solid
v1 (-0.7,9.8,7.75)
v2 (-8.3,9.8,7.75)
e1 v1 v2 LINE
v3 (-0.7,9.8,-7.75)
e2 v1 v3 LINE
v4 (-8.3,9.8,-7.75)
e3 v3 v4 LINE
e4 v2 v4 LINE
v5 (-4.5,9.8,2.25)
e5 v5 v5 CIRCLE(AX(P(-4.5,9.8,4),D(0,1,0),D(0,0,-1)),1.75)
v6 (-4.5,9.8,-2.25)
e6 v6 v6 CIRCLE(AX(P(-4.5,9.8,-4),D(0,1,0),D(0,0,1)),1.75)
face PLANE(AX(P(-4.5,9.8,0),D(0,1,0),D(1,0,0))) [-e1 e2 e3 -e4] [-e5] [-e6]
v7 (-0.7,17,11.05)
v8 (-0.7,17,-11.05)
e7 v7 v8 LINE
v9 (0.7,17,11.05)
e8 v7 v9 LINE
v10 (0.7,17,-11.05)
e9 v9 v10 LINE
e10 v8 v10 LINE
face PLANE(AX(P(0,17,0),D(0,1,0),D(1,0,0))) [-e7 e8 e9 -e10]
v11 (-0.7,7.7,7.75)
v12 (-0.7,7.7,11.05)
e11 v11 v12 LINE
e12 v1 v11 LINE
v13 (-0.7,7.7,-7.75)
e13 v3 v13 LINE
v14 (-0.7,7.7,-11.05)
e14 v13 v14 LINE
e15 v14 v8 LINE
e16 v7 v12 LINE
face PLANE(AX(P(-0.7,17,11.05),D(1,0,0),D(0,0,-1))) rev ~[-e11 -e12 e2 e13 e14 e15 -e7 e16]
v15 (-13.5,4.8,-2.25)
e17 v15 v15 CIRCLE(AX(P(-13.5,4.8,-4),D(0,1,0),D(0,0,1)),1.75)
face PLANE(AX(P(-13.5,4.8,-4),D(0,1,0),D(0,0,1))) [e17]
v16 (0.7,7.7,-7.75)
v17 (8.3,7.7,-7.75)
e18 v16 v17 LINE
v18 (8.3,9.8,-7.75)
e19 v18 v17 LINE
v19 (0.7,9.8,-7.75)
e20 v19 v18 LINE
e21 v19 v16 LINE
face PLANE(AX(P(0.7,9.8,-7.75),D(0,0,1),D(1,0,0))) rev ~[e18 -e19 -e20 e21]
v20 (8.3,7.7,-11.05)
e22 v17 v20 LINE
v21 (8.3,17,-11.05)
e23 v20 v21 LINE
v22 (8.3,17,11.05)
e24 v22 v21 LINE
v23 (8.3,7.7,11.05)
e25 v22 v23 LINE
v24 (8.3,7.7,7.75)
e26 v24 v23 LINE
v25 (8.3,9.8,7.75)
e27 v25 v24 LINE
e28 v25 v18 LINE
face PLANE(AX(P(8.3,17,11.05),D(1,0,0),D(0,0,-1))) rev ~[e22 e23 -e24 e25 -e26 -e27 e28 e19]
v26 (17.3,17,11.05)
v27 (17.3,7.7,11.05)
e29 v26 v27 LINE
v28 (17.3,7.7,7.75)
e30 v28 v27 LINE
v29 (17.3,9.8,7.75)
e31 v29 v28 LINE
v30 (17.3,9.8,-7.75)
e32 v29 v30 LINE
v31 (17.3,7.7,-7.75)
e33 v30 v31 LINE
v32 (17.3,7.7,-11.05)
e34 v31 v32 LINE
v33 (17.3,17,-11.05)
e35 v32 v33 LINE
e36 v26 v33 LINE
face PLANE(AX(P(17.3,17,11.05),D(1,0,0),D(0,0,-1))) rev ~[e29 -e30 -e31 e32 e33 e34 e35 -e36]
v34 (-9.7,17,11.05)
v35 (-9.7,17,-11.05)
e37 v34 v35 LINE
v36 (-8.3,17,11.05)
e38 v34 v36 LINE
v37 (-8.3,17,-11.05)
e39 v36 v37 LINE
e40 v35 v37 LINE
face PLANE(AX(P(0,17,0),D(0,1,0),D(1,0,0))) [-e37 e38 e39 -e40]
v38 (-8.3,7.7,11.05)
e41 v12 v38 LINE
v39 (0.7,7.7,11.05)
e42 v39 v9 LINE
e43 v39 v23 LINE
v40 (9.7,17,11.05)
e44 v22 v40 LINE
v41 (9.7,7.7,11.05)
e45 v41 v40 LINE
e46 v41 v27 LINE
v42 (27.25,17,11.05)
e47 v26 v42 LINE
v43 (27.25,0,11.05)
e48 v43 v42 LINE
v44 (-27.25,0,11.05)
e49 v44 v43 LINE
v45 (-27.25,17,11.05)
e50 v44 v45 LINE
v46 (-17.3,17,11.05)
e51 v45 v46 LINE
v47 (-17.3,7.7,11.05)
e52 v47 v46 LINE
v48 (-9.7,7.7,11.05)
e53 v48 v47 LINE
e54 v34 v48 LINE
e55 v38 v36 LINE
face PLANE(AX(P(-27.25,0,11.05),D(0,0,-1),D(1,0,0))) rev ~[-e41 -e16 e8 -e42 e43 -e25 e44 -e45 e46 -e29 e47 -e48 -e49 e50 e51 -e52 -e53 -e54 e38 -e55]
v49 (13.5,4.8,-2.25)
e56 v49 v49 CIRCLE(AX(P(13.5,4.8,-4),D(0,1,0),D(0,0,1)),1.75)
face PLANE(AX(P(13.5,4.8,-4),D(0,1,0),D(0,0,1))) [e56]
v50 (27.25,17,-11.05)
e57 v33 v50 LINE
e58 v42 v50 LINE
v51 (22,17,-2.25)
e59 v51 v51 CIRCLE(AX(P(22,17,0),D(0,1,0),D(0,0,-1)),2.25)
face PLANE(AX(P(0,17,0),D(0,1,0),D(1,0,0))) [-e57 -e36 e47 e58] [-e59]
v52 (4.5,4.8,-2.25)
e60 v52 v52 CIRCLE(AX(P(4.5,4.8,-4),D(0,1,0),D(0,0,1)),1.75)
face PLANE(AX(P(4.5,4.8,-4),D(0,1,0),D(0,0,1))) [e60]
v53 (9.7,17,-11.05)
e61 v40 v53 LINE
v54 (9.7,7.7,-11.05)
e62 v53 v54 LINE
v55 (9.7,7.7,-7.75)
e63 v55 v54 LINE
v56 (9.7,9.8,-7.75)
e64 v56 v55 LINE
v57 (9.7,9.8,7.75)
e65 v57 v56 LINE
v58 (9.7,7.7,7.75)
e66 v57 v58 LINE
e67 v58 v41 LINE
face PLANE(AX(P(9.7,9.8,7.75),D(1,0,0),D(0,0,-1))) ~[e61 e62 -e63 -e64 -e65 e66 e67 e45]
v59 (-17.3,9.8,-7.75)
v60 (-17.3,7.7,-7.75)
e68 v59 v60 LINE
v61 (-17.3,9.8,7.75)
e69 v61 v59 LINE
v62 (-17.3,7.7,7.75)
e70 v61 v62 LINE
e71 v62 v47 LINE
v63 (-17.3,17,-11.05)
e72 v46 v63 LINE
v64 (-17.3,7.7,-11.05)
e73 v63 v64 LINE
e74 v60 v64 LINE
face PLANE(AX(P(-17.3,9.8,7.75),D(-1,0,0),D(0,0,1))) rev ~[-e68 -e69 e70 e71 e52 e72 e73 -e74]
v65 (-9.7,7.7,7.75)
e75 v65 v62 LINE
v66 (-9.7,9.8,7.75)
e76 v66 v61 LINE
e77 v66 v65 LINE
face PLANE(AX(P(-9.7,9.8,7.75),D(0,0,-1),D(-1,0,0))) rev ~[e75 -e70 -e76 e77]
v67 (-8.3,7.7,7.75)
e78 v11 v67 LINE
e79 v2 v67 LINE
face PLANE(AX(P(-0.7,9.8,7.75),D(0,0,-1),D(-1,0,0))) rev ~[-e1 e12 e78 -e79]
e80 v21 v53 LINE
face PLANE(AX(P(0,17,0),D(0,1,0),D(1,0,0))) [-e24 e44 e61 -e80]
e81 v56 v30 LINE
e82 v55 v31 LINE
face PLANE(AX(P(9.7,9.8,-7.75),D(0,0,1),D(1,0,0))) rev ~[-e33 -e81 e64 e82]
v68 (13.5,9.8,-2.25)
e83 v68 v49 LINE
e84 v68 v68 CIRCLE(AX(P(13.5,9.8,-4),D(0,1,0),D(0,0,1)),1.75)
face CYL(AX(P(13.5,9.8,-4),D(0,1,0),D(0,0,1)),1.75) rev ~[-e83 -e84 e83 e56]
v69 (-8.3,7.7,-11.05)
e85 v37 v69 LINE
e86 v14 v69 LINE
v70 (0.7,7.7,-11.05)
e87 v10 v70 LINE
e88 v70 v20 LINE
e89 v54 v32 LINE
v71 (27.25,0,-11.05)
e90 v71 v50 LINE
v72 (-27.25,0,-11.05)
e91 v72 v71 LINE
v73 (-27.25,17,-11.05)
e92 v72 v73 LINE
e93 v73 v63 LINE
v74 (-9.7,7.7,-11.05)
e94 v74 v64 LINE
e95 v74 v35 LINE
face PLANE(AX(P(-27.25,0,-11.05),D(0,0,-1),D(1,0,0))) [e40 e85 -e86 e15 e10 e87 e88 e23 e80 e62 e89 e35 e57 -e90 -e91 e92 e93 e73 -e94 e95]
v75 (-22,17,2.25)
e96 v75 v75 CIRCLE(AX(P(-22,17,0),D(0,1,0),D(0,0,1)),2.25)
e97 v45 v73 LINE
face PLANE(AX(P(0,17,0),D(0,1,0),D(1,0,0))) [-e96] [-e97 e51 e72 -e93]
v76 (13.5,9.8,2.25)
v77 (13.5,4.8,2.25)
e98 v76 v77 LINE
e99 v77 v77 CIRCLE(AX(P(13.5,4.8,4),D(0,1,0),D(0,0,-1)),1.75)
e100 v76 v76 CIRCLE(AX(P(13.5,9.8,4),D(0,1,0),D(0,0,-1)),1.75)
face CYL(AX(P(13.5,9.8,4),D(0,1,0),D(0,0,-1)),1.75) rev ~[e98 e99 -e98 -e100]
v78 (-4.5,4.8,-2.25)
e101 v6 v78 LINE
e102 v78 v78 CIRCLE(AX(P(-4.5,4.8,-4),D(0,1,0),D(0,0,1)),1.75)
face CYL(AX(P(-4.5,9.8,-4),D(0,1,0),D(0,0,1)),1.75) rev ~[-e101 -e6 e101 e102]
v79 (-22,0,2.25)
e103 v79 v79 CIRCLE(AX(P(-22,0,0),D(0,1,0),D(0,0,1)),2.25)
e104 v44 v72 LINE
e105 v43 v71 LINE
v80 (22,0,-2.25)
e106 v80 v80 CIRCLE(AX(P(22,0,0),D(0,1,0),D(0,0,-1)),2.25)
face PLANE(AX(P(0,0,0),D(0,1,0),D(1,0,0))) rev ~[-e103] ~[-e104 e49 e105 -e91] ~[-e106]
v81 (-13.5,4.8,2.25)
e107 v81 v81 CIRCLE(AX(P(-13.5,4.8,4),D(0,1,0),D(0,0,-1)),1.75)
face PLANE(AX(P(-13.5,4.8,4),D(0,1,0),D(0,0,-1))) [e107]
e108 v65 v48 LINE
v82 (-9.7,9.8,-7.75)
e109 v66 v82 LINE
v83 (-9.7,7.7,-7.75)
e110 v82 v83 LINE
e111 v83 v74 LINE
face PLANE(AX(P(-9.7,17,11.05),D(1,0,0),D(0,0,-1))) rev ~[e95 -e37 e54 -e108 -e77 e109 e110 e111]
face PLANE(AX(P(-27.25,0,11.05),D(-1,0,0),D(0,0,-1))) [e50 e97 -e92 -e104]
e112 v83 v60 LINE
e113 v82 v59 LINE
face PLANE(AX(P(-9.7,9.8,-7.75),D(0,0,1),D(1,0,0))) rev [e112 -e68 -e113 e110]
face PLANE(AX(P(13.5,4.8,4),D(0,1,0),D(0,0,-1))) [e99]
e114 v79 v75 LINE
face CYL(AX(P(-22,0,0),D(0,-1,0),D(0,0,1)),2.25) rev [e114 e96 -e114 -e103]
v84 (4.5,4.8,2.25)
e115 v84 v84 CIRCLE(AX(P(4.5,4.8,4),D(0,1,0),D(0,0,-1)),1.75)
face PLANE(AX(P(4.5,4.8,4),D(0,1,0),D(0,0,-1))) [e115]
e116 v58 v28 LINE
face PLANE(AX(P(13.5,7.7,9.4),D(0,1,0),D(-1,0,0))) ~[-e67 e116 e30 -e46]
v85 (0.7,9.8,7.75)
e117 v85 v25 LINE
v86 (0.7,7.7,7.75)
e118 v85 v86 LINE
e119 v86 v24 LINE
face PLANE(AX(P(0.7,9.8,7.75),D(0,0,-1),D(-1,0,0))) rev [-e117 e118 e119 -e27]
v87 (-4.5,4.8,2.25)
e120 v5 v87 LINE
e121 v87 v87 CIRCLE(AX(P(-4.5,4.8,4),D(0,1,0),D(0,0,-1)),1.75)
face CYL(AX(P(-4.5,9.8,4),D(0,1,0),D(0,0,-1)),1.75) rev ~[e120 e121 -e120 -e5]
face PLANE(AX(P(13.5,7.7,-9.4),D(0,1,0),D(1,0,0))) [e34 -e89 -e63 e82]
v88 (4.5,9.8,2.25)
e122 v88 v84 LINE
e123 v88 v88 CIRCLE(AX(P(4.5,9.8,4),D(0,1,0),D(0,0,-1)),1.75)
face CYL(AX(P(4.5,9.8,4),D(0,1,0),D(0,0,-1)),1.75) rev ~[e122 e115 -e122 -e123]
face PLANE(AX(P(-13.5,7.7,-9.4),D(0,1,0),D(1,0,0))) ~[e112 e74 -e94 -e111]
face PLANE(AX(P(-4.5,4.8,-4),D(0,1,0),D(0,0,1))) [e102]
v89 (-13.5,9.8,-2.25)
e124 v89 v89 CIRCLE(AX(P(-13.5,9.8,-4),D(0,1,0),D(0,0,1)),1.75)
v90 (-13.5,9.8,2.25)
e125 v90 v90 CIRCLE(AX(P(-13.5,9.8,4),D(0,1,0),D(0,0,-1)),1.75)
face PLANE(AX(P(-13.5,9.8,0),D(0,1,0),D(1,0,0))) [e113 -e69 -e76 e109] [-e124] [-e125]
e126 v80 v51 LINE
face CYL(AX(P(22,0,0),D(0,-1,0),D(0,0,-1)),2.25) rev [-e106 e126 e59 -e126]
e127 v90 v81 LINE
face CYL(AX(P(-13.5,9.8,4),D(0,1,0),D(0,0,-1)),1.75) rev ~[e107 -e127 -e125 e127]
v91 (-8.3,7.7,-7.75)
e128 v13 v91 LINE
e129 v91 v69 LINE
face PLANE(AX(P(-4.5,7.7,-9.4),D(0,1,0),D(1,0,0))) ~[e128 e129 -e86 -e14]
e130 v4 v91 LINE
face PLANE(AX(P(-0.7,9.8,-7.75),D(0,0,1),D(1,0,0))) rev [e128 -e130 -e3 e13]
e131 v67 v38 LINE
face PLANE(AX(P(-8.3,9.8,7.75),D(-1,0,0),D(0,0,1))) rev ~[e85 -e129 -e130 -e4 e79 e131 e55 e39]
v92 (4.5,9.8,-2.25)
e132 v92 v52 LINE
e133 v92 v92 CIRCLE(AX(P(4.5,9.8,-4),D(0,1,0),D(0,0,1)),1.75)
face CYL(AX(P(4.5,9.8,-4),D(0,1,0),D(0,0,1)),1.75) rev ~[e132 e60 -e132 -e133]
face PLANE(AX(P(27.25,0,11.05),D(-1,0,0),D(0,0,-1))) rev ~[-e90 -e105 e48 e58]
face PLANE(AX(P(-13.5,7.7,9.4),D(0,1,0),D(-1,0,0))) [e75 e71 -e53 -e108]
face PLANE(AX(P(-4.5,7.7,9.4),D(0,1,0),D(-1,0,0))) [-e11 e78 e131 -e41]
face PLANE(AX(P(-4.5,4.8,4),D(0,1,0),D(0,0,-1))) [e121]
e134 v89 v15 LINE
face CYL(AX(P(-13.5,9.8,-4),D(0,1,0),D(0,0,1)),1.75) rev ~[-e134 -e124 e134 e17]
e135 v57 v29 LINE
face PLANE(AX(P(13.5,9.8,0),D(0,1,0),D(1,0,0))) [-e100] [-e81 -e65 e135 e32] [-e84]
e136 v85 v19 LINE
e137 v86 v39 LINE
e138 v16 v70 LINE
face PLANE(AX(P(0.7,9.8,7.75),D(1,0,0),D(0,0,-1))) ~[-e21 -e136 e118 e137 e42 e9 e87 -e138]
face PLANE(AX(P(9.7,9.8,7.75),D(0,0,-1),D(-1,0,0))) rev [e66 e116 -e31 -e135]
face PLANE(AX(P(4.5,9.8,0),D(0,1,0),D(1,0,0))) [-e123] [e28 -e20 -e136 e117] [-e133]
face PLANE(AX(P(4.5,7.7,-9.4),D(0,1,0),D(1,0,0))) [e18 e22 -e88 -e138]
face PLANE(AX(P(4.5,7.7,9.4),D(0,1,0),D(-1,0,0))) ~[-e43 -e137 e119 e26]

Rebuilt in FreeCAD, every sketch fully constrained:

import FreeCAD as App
import Part
import Sketcher
from FreeCAD import Vector


def add_polygon(sketch, points):
    """Adds a closed chain of lines whose ends are joined by coincident constraints."""
    first, n = sketch.GeometryCount, len(points)
    for a, b in zip(points, points[1:] + points[:1]):
        sketch.addGeometry(Part.LineSegment(App.Vector(*a, 0), App.Vector(*b, 0)), False)
    for i in range(n):
        sketch.addConstraint(Sketcher.Constraint("Coincident", first + i, 2, first + (i + 1) % n, 1))

doc = App.newDocument("Part")
body = doc.addObject("PartDesign::Body", "Body")

sketch1 = body.newObject("Sketcher::SketchObject", "Sketch")
sketch1.AttachmentSupport = (doc.getObject("XZ_Plane"), [""])
sketch1.MapMode = "FlatFace"
add_polygon(sketch1, [(-27.25, -11.05), (-27.25, 11.05), (27.25, 11.05), (27.25, -11.05)])
sketch1.addGeometry(Part.Circle(Vector(-22, 0, 0), Vector(0, 0, 1), 2.25), False)
sketch1.addGeometry(Part.Circle(Vector(22, 0, 0), Vector(0, 0, 1), 2.25), False)
sketch1.addConstraint([
    Sketcher.Constraint("Vertical", 0),
    Sketcher.Constraint("Horizontal", 1),
    Sketcher.Constraint("Vertical", 2),
    Sketcher.Constraint("Horizontal", 3),
    Sketcher.Constraint("Equal", 4, 5),
    Sketcher.Constraint("Symmetric", 4, 3, 5, 3, -1, 1),
    Sketcher.Constraint("Symmetric", 0, 2, 2, 2, -1, 1),
    Sketcher.Constraint("PointOnObject", 4, 3, -1),
    Sketcher.Constraint("Diameter", 4, 4.5),
    Sketcher.Constraint("DistanceX", 1, 1, 1, 2, 54.5),
    Sketcher.Constraint("DistanceY", 0, 1, 0, 2, 22.1),
    Sketcher.Constraint("DistanceX", 4, 3, -1, 1, 22.0),
])
pad1 = body.newObject("PartDesign::Pad", "Pad")
pad1.Profile = sketch1
pad1.Length = 17
pad1.Reversed = True

sketch2 = body.newObject("Sketcher::SketchObject", "Sketch001")
sketch2.AttachmentSupport = (doc.getObject("XZ_Plane"), [""])
sketch2.MapMode = "FlatFace"
sketch2.AttachmentOffset = App.Placement(Vector(0, 0, -17), App.Rotation())
add_polygon(sketch2, [(9.7, -11.05), (9.7, 11.05), (17.3, 11.05), (17.3, -11.05)])
add_polygon(sketch2, [(-17.3, -11.05), (-17.3, 11.05), (-9.7, 11.05), (-9.7, -11.05)])
add_polygon(sketch2, [(-8.3, -11.05), (-8.3, 11.05), (-0.7, 11.05), (-0.7, -11.05)])
add_polygon(sketch2, [(0.7, -11.05), (0.7, 11.05), (8.3, 11.05), (8.3, -11.05)])
sketch2.addConstraint([
    Sketcher.Constraint("Vertical", 0),
    Sketcher.Constraint("Horizontal", 1),
    Sketcher.Constraint("Vertical", 2),
    Sketcher.Constraint("Horizontal", 3),
    Sketcher.Constraint("Vertical", 4),
    Sketcher.Constraint("Horizontal", 5),
    Sketcher.Constraint("Vertical", 6),
    Sketcher.Constraint("Horizontal", 7),
    Sketcher.Constraint("Vertical", 8),
    Sketcher.Constraint("Horizontal", 9),
    Sketcher.Constraint("Vertical", 10),
    Sketcher.Constraint("Horizontal", 11),
    Sketcher.Constraint("Vertical", 12),
    Sketcher.Constraint("Horizontal", 13),
    Sketcher.Constraint("Vertical", 14),
    Sketcher.Constraint("Horizontal", 15),
    Sketcher.Constraint("Symmetric", 2, 2, 4, 2, -1, 1),
    Sketcher.Constraint("Symmetric", 0, 2, 6, 2, -1, 1),
    Sketcher.Constraint("Symmetric", 10, 2, 12, 2, -1, 1),
    Sketcher.Constraint("Symmetric", 8, 2, 14, 2, -1, 1),
    Sketcher.Constraint("Horizontal", 1, 2, 4, 2),
    Sketcher.Constraint("Horizontal", 5, 2, 8, 2),
    Sketcher.Constraint("Horizontal", 7, 2, 10, 2),
    Sketcher.Constraint("Equal", 7, 9),
    Sketcher.Constraint("DistanceX", 1, 1, 1, 2, 7.6),
    Sketcher.Constraint("DistanceY", 0, 1, 0, 2, 22.1),
    Sketcher.Constraint("DistanceX", 4, 2, 0, 2, 27.0),
    Sketcher.Constraint("DistanceX", 4, 2, 8, 2, 9.0),
])
pocket1 = body.newObject("PartDesign::Pocket", "Pocket")
pocket1.Profile = sketch2
pocket1.Length = 7.2
pocket1.Reversed = True

sketch3 = body.newObject("Sketcher::SketchObject", "Sketch002")
sketch3.AttachmentSupport = (doc.getObject("XZ_Plane"), [""])
sketch3.MapMode = "FlatFace"
sketch3.AttachmentOffset = App.Placement(Vector(0, 0, -9.8), App.Rotation())
add_polygon(sketch3, [(0.7, -11.05), (0.7, -7.75), (8.3, -7.75), (8.3, -11.05)])
add_polygon(sketch3, [(9.7, -11.05), (9.7, -7.75), (17.3, -7.75), (17.3, -11.05)])
sketch3.addConstraint([
    Sketcher.Constraint("Vertical", 0),
    Sketcher.Constraint("Horizontal", 1),
    Sketcher.Constraint("Vertical", 2),
    Sketcher.Constraint("Horizontal", 3),
    Sketcher.Constraint("Vertical", 4),
    Sketcher.Constraint("Horizontal", 5),
    Sketcher.Constraint("Vertical", 6),
    Sketcher.Constraint("Horizontal", 7),
    Sketcher.Constraint("Horizontal", 1, 2, 4, 2),
    Sketcher.Constraint("Horizontal", 3, 2, 6, 2),
    Sketcher.Constraint("Equal", 3, 5),
    Sketcher.Constraint("DistanceX", 1, 1, 1, 2, 7.6),
    Sketcher.Constraint("DistanceY", 0, 1, 0, 2, 3.3),
    Sketcher.Constraint("DistanceX", 0, 2, 4, 2, 9.0),
    Sketcher.Constraint("DistanceX", -1, 1, 0, 2, 0.7),
    Sketcher.Constraint("DistanceY", 0, 2, -1, 1, 7.75),
])
pocket2 = body.newObject("PartDesign::Pocket", "Pocket001")
pocket2.Profile = sketch3
pocket2.Length = 2.1
pocket2.Reversed = True
doc.recompute()

mirrored = body.newObject("PartDesign::Mirrored", "Mirrored")
mirrored.Originals = [pocket2]
mirrored.MirrorPlane = (doc.getObject("YZ_Plane"), [""])
body.Tip = mirrored
doc.recompute()

mirrored2 = body.newObject("PartDesign::Mirrored", "Mirrored001")
mirrored2.Originals = [pocket2]
mirrored2.MirrorPlane = (doc.getObject("XY_Plane"), [""])
body.Tip = mirrored2

sketch4 = body.newObject("Sketcher::SketchObject", "Sketch003")
sketch4.AttachmentSupport = (doc.getObject("XZ_Plane"), [""])
sketch4.MapMode = "FlatFace"
sketch4.AttachmentOffset = App.Placement(Vector(0, 0, -9.8), App.Rotation())
add_polygon(sketch4, [(-0.7, 11.05), (-0.7, 7.75), (-8.3, 7.75), (-8.3, 11.05)])
add_polygon(sketch4, [(-9.7, 11.05), (-9.7, 7.75), (-17.3, 7.75), (-17.3, 11.05)])
sketch4.addConstraint([
    Sketcher.Constraint("Vertical", 0),
    Sketcher.Constraint("Horizontal", 1),
    Sketcher.Constraint("Vertical", 2),
    Sketcher.Constraint("Horizontal", 3),
    Sketcher.Constraint("Vertical", 4),
    Sketcher.Constraint("Horizontal", 5),
    Sketcher.Constraint("Vertical", 6),
    Sketcher.Constraint("Horizontal", 7),
    Sketcher.Constraint("Horizontal", 1, 2, 4, 2),
    Sketcher.Constraint("Horizontal", 3, 2, 6, 2),
    Sketcher.Constraint("Equal", 3, 5),
    Sketcher.Constraint("DistanceX", 1, 2, 1, 1, 7.6),
    Sketcher.Constraint("DistanceY", 0, 2, 0, 1, 3.3),
    Sketcher.Constraint("DistanceX", 4, 2, 0, 2, 9.0),
    Sketcher.Constraint("DistanceX", 0, 2, -1, 1, 0.7),
    Sketcher.Constraint("DistanceY", -1, 1, 0, 2, 7.75),
])
pocket3 = body.newObject("PartDesign::Pocket", "Pocket002")
pocket3.Profile = sketch4
pocket3.Length = 2.1
pocket3.Reversed = True

sketch5 = body.newObject("Sketcher::SketchObject", "Sketch004")
sketch5.AttachmentSupport = (doc.getObject("XZ_Plane"), [""])
sketch5.MapMode = "FlatFace"
sketch5.AttachmentOffset = App.Placement(Vector(0, 0, -9.8), App.Rotation())
sketch5.addGeometry([
    Part.Circle(Vector(13.5, -4, 0), Vector(0, 0, 1), 1.75),
    Part.Circle(Vector(4.5, -4, 0), Vector(0, 0, 1), 1.75),
    Part.Circle(Vector(-4.5, -4, 0), Vector(0, 0, 1), 1.75),
    Part.Circle(Vector(-13.5, -4, 0), Vector(0, 0, 1), 1.75),
    Part.Circle(Vector(13.5, 4, 0), Vector(0, 0, 1), 1.75),
    Part.Circle(Vector(4.5, 4, 0), Vector(0, 0, 1), 1.75),
    Part.Circle(Vector(-4.5, 4, 0), Vector(0, 0, 1), 1.75),
    Part.Circle(Vector(-13.5, 4, 0), Vector(0, 0, 1), 1.75),
], False)
sketch5.addConstraint([
    Sketcher.Constraint("Equal", 0, 1),
    Sketcher.Constraint("Equal", 1, 2),
    Sketcher.Constraint("Equal", 2, 3),
    Sketcher.Constraint("Equal", 3, 4),
    Sketcher.Constraint("Equal", 4, 5),
    Sketcher.Constraint("Equal", 5, 6),
    Sketcher.Constraint("Equal", 6, 7),
    Sketcher.Constraint("Symmetric", 3, 3, 4, 3, -1, 1),
    Sketcher.Constraint("Symmetric", 2, 3, 5, 3, -1, 1),
    Sketcher.Constraint("Symmetric", 1, 3, 6, 3, -1, 1),
    Sketcher.Constraint("Symmetric", 0, 3, 7, 3, -1, 1),
    Sketcher.Constraint("Symmetric", 1, 3, 2, 3, -2),
    Sketcher.Constraint("Symmetric", 0, 3, 3, 3, -2),
    Sketcher.Constraint("Horizontal", 0, 3, 1, 3),
    Sketcher.Constraint("Diameter", 0, 3.5),
    Sketcher.Constraint("DistanceY", 0, 3, -1, 1, 4.0),
    Sketcher.Constraint("DistanceX", 1, 3, 0, 3, 9.0),
    Sketcher.Constraint("DistanceX", 2, 3, 1, 3, 9.0),
])
pocket4 = body.newObject("PartDesign::Pocket", "Pocket003")
pocket4.Profile = sketch5
pocket4.Length = 5
pocket4.Reversed = True

doc.recompute()
